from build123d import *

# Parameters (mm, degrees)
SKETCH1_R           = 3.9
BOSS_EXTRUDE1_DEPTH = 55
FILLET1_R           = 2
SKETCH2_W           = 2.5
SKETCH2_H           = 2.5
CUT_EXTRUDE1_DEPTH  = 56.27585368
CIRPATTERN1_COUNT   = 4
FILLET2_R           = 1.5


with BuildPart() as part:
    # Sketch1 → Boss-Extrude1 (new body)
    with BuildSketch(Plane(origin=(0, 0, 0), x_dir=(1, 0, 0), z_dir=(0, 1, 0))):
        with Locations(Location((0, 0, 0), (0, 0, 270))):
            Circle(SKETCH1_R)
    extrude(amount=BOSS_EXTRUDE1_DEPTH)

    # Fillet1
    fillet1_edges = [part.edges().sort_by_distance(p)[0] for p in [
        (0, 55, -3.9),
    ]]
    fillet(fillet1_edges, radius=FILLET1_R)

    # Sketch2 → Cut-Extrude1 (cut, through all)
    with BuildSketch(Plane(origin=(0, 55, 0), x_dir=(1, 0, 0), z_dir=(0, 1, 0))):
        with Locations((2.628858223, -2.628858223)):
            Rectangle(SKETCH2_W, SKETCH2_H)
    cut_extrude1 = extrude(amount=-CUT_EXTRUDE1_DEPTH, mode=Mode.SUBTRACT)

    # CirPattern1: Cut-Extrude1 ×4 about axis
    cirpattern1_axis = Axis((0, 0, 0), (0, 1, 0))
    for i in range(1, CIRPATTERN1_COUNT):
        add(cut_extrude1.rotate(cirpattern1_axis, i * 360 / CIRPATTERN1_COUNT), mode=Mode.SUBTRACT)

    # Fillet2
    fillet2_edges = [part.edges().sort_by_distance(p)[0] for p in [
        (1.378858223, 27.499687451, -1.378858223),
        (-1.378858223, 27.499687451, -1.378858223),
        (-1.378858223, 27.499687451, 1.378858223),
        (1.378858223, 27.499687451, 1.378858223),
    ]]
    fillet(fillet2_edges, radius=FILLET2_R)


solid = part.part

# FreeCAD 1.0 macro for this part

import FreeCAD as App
import Part
import Sketcher
from FreeCAD import Vector
Q = App.Units.Quantity


def edges_at(feature, points):
    """Names of the edges that pass closest to the given points."""
    edges = feature.Shape.Edges
    near = lambda p: min(range(len(edges)), key=lambda i: edges[i].distToShape(Part.Vertex(*p))[0])
    return sorted({f"Edge{near(p) + 1}" for p in points})

doc = App.newDocument("Part")
body = doc.addObject("PartDesign::Body", "Body")

# Sketch on XZ plane
sketch1 = doc.addObject("Sketcher::SketchObject", "Sketch")
body.addObject(sketch1)
sketch1.AttachmentSupport = (doc.XZ_Plane, [""])
sketch1.MapMode = "FlatFace"
sketch1.addGeometry(Part.Circle(Vector(0, 0, 0), Vector(0, 0, 1), 3.9), False)
sketch1.addConstraint([
    Sketcher.Constraint("Coincident", 0, 3, -1, 1),
    Sketcher.Constraint("Diameter", 0, Q("7.8 mm")),
])
pad1 = doc.addObject("PartDesign::Pad", "Pad")
body.addObject(pad1)
pad1.Profile = sketch1
pad1.Length = 55
pad1.Reversed = True
doc.recompute()

fillet = doc.addObject("PartDesign::Fillet", "Fillet")
body.addObject(fillet)
fillet.Base = (pad1, edges_at(pad1, [(0, 55, -3.9)]))
fillet.Radius = 2

# Sketch on XZ plane
sketch2 = doc.addObject("Sketcher::SketchObject", "Sketch001")
body.addObject(sketch2)
sketch2.AttachmentSupport = (doc.XZ_Plane, [""])
sketch2.MapMode = "FlatFace"
sketch2.AttachmentOffset = App.Placement(Vector(0, 0, -55), App.Rotation())
sketch2.addGeometry([
    Part.LineSegment(Vector(1.378858, 1.378858, 0), Vector(1.378858, 3.878858, 0)),
    Part.LineSegment(Vector(1.378858, 3.878858, 0), Vector(3.878858, 3.878858, 0)),
    Part.LineSegment(Vector(3.878858, 3.878858, 0), Vector(3.878858, 1.378858, 0)),
    Part.LineSegment(Vector(3.878858, 1.378858, 0), Vector(1.378858, 1.378858, 0)),
], False)
sketch2.addConstraint([
    Sketcher.Constraint("Coincident", 0, 2, 1, 1),
    Sketcher.Constraint("Coincident", 1, 2, 2, 1),
    Sketcher.Constraint("Coincident", 2, 2, 3, 1),
    Sketcher.Constraint("Coincident", 3, 2, 0, 1),
    Sketcher.Constraint("Vertical", 0),
    Sketcher.Constraint("Horizontal", 1),
    Sketcher.Constraint("Vertical", 2),
    Sketcher.Constraint("Horizontal", 3),
    Sketcher.Constraint("Equal", 3, 0),
    Sketcher.Constraint("DistanceX", 1, 1, 1, 2, Q("2.5 mm")),
    Sketcher.Constraint("DistanceX", -1, 1, 0, 2, Q("1.378858 mm")),
    Sketcher.Constraint("DistanceY", -1, 1, 0, 2, Q("3.878858 mm")),
])
pocket1 = doc.addObject("PartDesign::Pocket", "Pocket")
body.addObject(pocket1)
pocket1.Profile = sketch2
pocket1.Type = "ThroughAll"
pocket1.Reversed = True
doc.recompute()

polarpattern = doc.addObject("PartDesign::PolarPattern", "PolarPattern")
body.addObject(polarpattern)
polarpattern.Originals = [pocket1]
polarpattern.Axis = (doc.Y_Axis, [""])
polarpattern.Angle = 360
polarpattern.Occurrences = 4
body.Tip = polarpattern
doc.recompute()

fillet2 = doc.addObject("PartDesign::Fillet", "Fillet001")
body.addObject(fillet2)
fillet2.Base = (polarpattern, edges_at(polarpattern, [
    (1.379, 27.5, -1.379),
    (-1.379, 27.5, -1.379),
    (-1.379, 27.5, 1.379),
    (1.379, 27.5, 1.379),
]))
fillet2.Radius = 1.5

doc.recompute()
